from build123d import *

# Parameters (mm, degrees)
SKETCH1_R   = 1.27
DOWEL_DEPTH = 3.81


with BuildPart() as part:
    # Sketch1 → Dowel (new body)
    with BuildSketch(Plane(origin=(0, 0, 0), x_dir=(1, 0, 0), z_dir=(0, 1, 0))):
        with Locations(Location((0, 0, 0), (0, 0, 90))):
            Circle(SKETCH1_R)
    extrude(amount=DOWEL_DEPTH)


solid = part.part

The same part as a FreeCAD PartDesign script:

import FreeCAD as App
import Part
import Sketcher
Q = App.Units.Quantity

doc = App.newDocument("Part")
params = doc.addObject("Spreadsheet::Sheet", "Params")
for row, (alias, value) in enumerate([
    ("sketch1_diameter", "0.1 in"),
    ("pad1_length", "0.15 in"),
], start=1):
    params.set(f"A{row}", alias)
    params.set(f"B{row}", "=" + value)
    params.setAlias(f"B{row}", alias)

body = doc.addObject("PartDesign::Body", "Body")

# Sketch on XZ plane
sketch1 = body.newObject("Sketcher::SketchObject", "Sketch")
sketch1.AttachmentSupport = (doc.getObject("XZ_Plane"), [""])
sketch1.MapMode = "FlatFace"
sketch1.addGeometry(Part.Circle(App.Vector(0, 0, 0), App.Vector(0, 0, 1), 1.3), False)
sketch1.addConstraint([
    Sketcher.Constraint("Coincident", 0, 3, -1, 1),
    Sketcher.Constraint("Diameter", 0, Q("0.1 in")),
])
sketch1.setExpression("Constraints[1]", "Params.sketch1_diameter")
pad1 = body.newObject("PartDesign::Pad", "Pad")
pad1.Profile = sketch1
pad1.setExpression("Length", "Params.pad1_length")
pad1.Reversed = True

doc.recompute()
